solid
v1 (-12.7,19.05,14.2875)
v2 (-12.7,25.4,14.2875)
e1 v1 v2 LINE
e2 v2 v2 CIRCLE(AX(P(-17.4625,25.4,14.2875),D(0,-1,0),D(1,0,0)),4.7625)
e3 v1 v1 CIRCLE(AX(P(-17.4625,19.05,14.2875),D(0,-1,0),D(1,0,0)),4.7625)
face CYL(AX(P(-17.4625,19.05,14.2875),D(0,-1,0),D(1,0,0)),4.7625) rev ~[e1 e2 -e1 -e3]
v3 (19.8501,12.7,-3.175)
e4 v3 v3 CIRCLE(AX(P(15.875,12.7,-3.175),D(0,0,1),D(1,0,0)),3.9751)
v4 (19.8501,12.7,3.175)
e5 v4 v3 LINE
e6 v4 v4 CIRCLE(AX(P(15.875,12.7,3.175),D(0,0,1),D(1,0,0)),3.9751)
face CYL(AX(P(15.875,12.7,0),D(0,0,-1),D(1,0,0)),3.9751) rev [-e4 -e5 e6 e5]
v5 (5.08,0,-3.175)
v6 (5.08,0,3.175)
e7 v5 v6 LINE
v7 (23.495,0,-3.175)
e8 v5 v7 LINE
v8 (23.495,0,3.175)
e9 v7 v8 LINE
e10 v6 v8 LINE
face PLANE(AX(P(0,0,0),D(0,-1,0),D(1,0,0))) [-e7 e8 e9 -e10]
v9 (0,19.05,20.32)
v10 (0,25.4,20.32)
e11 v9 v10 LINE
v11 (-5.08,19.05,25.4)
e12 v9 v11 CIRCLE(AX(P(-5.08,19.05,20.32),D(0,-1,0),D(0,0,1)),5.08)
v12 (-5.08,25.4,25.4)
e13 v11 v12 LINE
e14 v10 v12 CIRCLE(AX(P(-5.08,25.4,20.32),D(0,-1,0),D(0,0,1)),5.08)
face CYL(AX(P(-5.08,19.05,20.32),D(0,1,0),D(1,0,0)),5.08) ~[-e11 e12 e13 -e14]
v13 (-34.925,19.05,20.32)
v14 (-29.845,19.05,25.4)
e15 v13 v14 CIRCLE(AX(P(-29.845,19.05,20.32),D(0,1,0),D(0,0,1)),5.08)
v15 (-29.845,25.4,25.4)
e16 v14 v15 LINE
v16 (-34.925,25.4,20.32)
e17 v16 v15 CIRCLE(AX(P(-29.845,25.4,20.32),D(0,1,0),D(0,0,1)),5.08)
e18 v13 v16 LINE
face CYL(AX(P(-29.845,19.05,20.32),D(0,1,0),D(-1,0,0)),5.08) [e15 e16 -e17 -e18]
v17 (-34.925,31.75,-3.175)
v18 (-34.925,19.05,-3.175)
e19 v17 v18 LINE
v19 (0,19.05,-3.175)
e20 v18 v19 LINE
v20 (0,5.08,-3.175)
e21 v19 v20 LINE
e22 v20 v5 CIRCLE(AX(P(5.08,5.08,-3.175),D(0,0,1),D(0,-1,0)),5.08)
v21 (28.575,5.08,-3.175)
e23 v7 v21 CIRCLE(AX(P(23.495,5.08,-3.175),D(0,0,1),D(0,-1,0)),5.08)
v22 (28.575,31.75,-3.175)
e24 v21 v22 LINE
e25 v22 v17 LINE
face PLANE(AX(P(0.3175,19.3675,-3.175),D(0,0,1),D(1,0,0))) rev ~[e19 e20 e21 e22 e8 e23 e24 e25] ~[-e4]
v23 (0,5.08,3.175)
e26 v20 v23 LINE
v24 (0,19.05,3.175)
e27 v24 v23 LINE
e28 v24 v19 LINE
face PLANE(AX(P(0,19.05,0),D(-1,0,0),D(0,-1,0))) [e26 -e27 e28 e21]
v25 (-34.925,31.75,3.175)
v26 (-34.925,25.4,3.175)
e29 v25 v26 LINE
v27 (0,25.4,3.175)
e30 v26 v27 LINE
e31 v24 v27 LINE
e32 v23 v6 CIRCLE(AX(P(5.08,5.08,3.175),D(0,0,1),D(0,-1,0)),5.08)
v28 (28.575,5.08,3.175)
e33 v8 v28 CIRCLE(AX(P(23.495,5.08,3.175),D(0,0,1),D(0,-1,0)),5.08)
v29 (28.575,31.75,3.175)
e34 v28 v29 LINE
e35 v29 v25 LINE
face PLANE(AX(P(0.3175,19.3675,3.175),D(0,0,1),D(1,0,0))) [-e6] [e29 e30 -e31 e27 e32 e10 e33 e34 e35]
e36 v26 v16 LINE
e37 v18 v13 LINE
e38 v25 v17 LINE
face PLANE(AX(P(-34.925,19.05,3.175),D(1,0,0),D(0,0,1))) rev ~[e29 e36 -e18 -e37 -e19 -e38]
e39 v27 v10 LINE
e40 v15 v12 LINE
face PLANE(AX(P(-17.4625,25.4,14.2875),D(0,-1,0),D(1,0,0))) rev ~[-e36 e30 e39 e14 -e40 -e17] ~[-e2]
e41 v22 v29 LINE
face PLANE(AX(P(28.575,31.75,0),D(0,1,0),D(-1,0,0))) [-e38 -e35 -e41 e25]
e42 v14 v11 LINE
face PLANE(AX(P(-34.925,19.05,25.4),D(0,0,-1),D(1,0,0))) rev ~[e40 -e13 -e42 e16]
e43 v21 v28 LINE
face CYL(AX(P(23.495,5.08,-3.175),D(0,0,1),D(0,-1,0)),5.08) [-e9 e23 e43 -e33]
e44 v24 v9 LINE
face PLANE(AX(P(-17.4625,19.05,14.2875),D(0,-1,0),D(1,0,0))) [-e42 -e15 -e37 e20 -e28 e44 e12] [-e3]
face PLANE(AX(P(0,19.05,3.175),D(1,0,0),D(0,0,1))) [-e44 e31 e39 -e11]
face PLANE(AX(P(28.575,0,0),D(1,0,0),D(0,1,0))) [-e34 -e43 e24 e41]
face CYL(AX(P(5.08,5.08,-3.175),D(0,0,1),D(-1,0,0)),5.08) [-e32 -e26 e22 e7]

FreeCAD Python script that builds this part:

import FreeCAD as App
import Part
import Sketcher
Q = App.Units.Quantity


def edges_at(feature, points):
    """Names of the edges that pass closest to the given points."""
    edges = feature.Shape.Edges
    near = lambda p: min(range(len(edges)), key=lambda i: edges[i].distToShape(Part.Vertex(*p))[0])
    return sorted({f"Edge{near(p) + 1}" for p in points})

doc = App.newDocument("Part")
body = doc.addObject("PartDesign::Body", "Body")

sketch1 = doc.addObject("Sketcher::SketchObject", "Sketch")
body.addObject(sketch1)
sketch1.AttachmentSupport = (doc.XY_Plane, [""])
sketch1.MapMode = "FlatFace"
sketch1.addGeometry(Part.LineSegment(App.Vector(0, 19.1, 0), App.Vector(0, 0, 0)), False)
sketch1.addGeometry(Part.LineSegment(App.Vector(0, 0, 0), App.Vector(28.6, 0, 0)), False)
sketch1.addGeometry(Part.LineSegment(App.Vector(28.6, 0, 0), App.Vector(28.6, 31.8, 0)), False)
sketch1.addGeometry(Part.LineSegment(App.Vector(28.6, 31.8, 0), App.Vector(-34.9, 31.8, 0)), False)
sketch1.addGeometry(Part.LineSegment(App.Vector(-34.9, 31.8, 0), App.Vector(-34.9, 19.1, 0)), False)
sketch1.addGeometry(Part.LineSegment(App.Vector(-34.9, 19.1, 0), App.Vector(0, 19.1, 0)), False)
sketch1.addGeometry(Part.Circle(App.Vector(15.9, 12.7, 0), App.Vector(0, 0, 1), 4), False)
sketch1.addConstraint(Sketcher.Constraint("Coincident", 0, 2, 1, 1))
sketch1.addConstraint(Sketcher.Constraint("Coincident", 1, 2, 2, 1))
sketch1.addConstraint(Sketcher.Constraint("Coincident", 2, 2, 3, 1))
sketch1.addConstraint(Sketcher.Constraint("Coincident", 3, 2, 4, 1))
sketch1.addConstraint(Sketcher.Constraint("Coincident", 4, 2, 5, 1))
sketch1.addConstraint(Sketcher.Constraint("Coincident", 5, 2, 0, 1))
sketch1.addConstraint(Sketcher.Constraint("Vertical", 0))
sketch1.addConstraint(Sketcher.Constraint("Horizontal", 1))
sketch1.addConstraint(Sketcher.Constraint("Vertical", 2))
sketch1.addConstraint(Sketcher.Constraint("Horizontal", 3))
sketch1.addConstraint(Sketcher.Constraint("Vertical", 4))
sketch1.addConstraint(Sketcher.Constraint("Horizontal", 5))
sketch1.addConstraint(Sketcher.Constraint("Coincident", 0, 2, -1, 1))
sketch1.addConstraint(Sketcher.Constraint("Diameter", 6, Q("0.313 in")))
sketch1.addConstraint(Sketcher.Constraint("DistanceX", 3, 2, 3, 1, Q("2.5 in")))
sketch1.addConstraint(Sketcher.Constraint("DistanceY", 4, 2, 4, 1, Q("0.5 in")))
sketch1.addConstraint(Sketcher.Constraint("DistanceX", 3, 2, 6, 3, Q("2 in")))
sketch1.addConstraint(Sketcher.Constraint("DistanceY", 0, 2, 0, 1, Q("0.75 in")))
sketch1.addConstraint(Sketcher.Constraint("DistanceY", -1, 1, 6, 3, Q("0.5 in")))
sketch1.addConstraint(Sketcher.Constraint("DistanceX", 1, 1, 1, 2, Q("1.125 in")))
pad1 = doc.addObject("PartDesign::Pad", "Pad")
body.addObject(pad1)
pad1.Profile = sketch1
pad1.Length = Q("0.25 in")
pad1.Midplane = True

sketch2 = doc.addObject("Sketcher::SketchObject", "Sketch001")
body.addObject(sketch2)
sketch2.AttachmentSupport = (doc.XZ_Plane, [""])
sketch2.MapMode = "FlatFace"
sketch2.AttachmentOffset = App.Placement(App.Vector(0, 0, -0.75 * 25.4), App.Rotation())
sketch2.addGeometry(Part.LineSegment(App.Vector(-34.9, 25.4, 0), App.Vector(-34.9, 3.2, 0)), False)
sketch2.addGeometry(Part.LineSegment(App.Vector(-34.9, 3.2, 0), App.Vector(0, 3.2, 0)), False)
sketch2.addGeometry(Part.LineSegment(App.Vector(0, 3.2, 0), App.Vector(0, 25.4, 0)), False)
sketch2.addGeometry(Part.LineSegment(App.Vector(0, 25.4, 0), App.Vector(-34.9, 25.4, 0)), False)
sketch2.addGeometry(Part.Circle(App.Vector(-17.5, 14.3, 0), App.Vector(0, 0, 1), 4.8), False)
sketch2.addConstraint(Sketcher.Constraint("Coincident", 0, 2, 1, 1))
sketch2.addConstraint(Sketcher.Constraint("Coincident", 1, 2, 2, 1))
sketch2.addConstraint(Sketcher.Constraint("Coincident", 2, 2, 3, 1))
sketch2.addConstraint(Sketcher.Constraint("Coincident", 3, 2, 0, 1))
sketch2.addConstraint(Sketcher.Constraint("Vertical", 0))
sketch2.addConstraint(Sketcher.Constraint("Horizontal", 1))
sketch2.addConstraint(Sketcher.Constraint("Vertical", 2))
sketch2.addConstraint(Sketcher.Constraint("Horizontal", 3))
sketch2.addConstraint(Sketcher.Constraint("PointOnObject", 1, 2, -2))
sketch2.addConstraint(Sketcher.Constraint("Diameter", 4, Q("0.375 in")))
sketch2.addConstraint(Sketcher.Constraint("DistanceY", -1, 1, 2, 2, Q("1 in")))
sketch2.addConstraint(Sketcher.Constraint("DistanceX", 1, 1, 1, 2, Q("1.375 in")))
sketch2.addConstraint(Sketcher.Constraint("DistanceY", 0, 2, 0, 1, Q("0.875 in")))
sketch2.addConstraint(Sketcher.Constraint("DistanceX", 4, 3, -1, 1, Q("0.6875 in")))
sketch2.addConstraint(Sketcher.Constraint("DistanceY", -1, 1, 4, 3, Q("0.5625 in")))
pad2 = doc.addObject("PartDesign::Pad", "Pad001")
body.addObject(pad2)
pad2.Profile = sketch2
pad2.Length = Q("0.25 in")
pad2.Reversed = True
doc.recompute()

fillet = doc.addObject("PartDesign::Fillet", "Fillet")
body.addObject(fillet)
fillet.Base = (pad2, edges_at(pad2, [
    (-34.925, 22.225, 25.4),
    (0, 22.225, 25.4),
    (0, 0, 0),
    (28.575, 0, 0),
]))
fillet.Radius = Q("0.2 in")

doc.recompute()
